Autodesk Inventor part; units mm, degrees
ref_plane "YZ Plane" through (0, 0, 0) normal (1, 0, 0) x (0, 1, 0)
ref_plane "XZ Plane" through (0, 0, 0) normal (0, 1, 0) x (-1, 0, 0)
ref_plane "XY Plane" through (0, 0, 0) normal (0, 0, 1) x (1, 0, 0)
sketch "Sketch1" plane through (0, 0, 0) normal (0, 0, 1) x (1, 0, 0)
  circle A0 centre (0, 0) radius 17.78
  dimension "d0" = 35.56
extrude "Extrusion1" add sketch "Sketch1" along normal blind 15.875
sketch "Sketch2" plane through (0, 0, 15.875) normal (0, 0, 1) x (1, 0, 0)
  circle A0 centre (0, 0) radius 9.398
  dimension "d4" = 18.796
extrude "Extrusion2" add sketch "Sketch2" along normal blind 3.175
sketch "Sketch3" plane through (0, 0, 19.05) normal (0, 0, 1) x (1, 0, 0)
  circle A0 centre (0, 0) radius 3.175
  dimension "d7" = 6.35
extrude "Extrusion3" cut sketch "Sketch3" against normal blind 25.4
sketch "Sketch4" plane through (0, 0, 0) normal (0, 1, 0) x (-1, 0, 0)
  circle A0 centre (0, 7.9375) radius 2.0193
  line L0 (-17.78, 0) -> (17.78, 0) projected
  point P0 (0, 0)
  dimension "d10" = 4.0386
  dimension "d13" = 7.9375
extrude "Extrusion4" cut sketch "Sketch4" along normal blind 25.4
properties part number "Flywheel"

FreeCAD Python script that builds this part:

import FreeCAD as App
import Part
import Sketcher
Q = App.Units.Quantity

doc = App.newDocument("Part")
body = doc.addObject("PartDesign::Body", "Body")

# Sketch on XY plane
sketch1 = body.newObject("Sketcher::SketchObject", "Sketch")
sketch1.AttachmentSupport = (doc.getObject("XY_Plane"), [""])
sketch1.MapMode = "FlatFace"
sketch1.addGeometry(Part.Circle(App.Vector(0, 0, 0), App.Vector(0, 0, 1), 17.78), False)
sketch1.addConstraint(Sketcher.Constraint("Coincident", 0, 3, -1, 1))
sketch1.addConstraint(Sketcher.Constraint("Diameter", 0, Q("1.4 in")))
pad1 = body.newObject("PartDesign::Pad", "Pad")
pad1.Profile = sketch1
pad1.Length = Q("0.625 in")

# Sketch on XY plane
sketch2 = body.newObject("Sketcher::SketchObject", "Sketch001")
sketch2.AttachmentSupport = (doc.getObject("XY_Plane"), [""])
sketch2.MapMode = "FlatFace"
sketch2.AttachmentOffset = App.Placement(App.Vector(0, 0, 0.625 * 25.4), App.Rotation())
sketch2.addGeometry(Part.Circle(App.Vector(0, 0, 0), App.Vector(0, 0, 1), 9.398), False)
sketch2.addConstraint(Sketcher.Constraint("Coincident", 0, 3, -1, 1))
sketch2.addConstraint(Sketcher.Constraint("Diameter", 0, Q("0.74 in")))
pad2 = body.newObject("PartDesign::Pad", "Pad001")
pad2.Profile = sketch2
pad2.Length = Q("0.125 in")

# Sketch on XY plane
sketch3 = body.newObject("Sketcher::SketchObject", "Sketch002")
sketch3.AttachmentSupport = (doc.getObject("XY_Plane"), [""])
sketch3.MapMode = "FlatFace"
sketch3.AttachmentOffset = App.Placement(App.Vector(0, 0, 0.75 * 25.4), App.Rotation())
sketch3.addGeometry(Part.Circle(App.Vector(0, 0, 0), App.Vector(0, 0, 1), 3.175), False)
sketch3.addConstraint(Sketcher.Constraint("Coincident", 0, 3, -1, 1))
sketch3.addConstraint(Sketcher.Constraint("Diameter", 0, Q("0.25 in")))
pocket1 = body.newObject("PartDesign::Pocket", "Pocket")
pocket1.Profile = sketch3
pocket1.Length = Q("1 in")

# Sketch on XZ plane
sketch4 = body.newObject("Sketcher::SketchObject", "Sketch003")
sketch4.AttachmentSupport = (doc.getObject("XZ_Plane"), [""])
sketch4.MapMode = "FlatFace"
sketch4.addGeometry(Part.Circle(App.Vector(0, 7.9375, 0), App.Vector(0, 0, 1), 2.0193), False)
sketch4.addConstraint(Sketcher.Constraint("PointOnObject", 0, 3, -2))
sketch4.addConstraint(Sketcher.Constraint("Diameter", 0, Q("0.159 in")))
sketch4.addConstraint(Sketcher.Constraint("DistanceY", -1, 1, 0, 3, Q("0.3125 in")))
pocket2 = body.newObject("PartDesign::Pocket", "Pocket001")
pocket2.Profile = sketch4
pocket2.Length = Q("1 in")

doc.recompute()
